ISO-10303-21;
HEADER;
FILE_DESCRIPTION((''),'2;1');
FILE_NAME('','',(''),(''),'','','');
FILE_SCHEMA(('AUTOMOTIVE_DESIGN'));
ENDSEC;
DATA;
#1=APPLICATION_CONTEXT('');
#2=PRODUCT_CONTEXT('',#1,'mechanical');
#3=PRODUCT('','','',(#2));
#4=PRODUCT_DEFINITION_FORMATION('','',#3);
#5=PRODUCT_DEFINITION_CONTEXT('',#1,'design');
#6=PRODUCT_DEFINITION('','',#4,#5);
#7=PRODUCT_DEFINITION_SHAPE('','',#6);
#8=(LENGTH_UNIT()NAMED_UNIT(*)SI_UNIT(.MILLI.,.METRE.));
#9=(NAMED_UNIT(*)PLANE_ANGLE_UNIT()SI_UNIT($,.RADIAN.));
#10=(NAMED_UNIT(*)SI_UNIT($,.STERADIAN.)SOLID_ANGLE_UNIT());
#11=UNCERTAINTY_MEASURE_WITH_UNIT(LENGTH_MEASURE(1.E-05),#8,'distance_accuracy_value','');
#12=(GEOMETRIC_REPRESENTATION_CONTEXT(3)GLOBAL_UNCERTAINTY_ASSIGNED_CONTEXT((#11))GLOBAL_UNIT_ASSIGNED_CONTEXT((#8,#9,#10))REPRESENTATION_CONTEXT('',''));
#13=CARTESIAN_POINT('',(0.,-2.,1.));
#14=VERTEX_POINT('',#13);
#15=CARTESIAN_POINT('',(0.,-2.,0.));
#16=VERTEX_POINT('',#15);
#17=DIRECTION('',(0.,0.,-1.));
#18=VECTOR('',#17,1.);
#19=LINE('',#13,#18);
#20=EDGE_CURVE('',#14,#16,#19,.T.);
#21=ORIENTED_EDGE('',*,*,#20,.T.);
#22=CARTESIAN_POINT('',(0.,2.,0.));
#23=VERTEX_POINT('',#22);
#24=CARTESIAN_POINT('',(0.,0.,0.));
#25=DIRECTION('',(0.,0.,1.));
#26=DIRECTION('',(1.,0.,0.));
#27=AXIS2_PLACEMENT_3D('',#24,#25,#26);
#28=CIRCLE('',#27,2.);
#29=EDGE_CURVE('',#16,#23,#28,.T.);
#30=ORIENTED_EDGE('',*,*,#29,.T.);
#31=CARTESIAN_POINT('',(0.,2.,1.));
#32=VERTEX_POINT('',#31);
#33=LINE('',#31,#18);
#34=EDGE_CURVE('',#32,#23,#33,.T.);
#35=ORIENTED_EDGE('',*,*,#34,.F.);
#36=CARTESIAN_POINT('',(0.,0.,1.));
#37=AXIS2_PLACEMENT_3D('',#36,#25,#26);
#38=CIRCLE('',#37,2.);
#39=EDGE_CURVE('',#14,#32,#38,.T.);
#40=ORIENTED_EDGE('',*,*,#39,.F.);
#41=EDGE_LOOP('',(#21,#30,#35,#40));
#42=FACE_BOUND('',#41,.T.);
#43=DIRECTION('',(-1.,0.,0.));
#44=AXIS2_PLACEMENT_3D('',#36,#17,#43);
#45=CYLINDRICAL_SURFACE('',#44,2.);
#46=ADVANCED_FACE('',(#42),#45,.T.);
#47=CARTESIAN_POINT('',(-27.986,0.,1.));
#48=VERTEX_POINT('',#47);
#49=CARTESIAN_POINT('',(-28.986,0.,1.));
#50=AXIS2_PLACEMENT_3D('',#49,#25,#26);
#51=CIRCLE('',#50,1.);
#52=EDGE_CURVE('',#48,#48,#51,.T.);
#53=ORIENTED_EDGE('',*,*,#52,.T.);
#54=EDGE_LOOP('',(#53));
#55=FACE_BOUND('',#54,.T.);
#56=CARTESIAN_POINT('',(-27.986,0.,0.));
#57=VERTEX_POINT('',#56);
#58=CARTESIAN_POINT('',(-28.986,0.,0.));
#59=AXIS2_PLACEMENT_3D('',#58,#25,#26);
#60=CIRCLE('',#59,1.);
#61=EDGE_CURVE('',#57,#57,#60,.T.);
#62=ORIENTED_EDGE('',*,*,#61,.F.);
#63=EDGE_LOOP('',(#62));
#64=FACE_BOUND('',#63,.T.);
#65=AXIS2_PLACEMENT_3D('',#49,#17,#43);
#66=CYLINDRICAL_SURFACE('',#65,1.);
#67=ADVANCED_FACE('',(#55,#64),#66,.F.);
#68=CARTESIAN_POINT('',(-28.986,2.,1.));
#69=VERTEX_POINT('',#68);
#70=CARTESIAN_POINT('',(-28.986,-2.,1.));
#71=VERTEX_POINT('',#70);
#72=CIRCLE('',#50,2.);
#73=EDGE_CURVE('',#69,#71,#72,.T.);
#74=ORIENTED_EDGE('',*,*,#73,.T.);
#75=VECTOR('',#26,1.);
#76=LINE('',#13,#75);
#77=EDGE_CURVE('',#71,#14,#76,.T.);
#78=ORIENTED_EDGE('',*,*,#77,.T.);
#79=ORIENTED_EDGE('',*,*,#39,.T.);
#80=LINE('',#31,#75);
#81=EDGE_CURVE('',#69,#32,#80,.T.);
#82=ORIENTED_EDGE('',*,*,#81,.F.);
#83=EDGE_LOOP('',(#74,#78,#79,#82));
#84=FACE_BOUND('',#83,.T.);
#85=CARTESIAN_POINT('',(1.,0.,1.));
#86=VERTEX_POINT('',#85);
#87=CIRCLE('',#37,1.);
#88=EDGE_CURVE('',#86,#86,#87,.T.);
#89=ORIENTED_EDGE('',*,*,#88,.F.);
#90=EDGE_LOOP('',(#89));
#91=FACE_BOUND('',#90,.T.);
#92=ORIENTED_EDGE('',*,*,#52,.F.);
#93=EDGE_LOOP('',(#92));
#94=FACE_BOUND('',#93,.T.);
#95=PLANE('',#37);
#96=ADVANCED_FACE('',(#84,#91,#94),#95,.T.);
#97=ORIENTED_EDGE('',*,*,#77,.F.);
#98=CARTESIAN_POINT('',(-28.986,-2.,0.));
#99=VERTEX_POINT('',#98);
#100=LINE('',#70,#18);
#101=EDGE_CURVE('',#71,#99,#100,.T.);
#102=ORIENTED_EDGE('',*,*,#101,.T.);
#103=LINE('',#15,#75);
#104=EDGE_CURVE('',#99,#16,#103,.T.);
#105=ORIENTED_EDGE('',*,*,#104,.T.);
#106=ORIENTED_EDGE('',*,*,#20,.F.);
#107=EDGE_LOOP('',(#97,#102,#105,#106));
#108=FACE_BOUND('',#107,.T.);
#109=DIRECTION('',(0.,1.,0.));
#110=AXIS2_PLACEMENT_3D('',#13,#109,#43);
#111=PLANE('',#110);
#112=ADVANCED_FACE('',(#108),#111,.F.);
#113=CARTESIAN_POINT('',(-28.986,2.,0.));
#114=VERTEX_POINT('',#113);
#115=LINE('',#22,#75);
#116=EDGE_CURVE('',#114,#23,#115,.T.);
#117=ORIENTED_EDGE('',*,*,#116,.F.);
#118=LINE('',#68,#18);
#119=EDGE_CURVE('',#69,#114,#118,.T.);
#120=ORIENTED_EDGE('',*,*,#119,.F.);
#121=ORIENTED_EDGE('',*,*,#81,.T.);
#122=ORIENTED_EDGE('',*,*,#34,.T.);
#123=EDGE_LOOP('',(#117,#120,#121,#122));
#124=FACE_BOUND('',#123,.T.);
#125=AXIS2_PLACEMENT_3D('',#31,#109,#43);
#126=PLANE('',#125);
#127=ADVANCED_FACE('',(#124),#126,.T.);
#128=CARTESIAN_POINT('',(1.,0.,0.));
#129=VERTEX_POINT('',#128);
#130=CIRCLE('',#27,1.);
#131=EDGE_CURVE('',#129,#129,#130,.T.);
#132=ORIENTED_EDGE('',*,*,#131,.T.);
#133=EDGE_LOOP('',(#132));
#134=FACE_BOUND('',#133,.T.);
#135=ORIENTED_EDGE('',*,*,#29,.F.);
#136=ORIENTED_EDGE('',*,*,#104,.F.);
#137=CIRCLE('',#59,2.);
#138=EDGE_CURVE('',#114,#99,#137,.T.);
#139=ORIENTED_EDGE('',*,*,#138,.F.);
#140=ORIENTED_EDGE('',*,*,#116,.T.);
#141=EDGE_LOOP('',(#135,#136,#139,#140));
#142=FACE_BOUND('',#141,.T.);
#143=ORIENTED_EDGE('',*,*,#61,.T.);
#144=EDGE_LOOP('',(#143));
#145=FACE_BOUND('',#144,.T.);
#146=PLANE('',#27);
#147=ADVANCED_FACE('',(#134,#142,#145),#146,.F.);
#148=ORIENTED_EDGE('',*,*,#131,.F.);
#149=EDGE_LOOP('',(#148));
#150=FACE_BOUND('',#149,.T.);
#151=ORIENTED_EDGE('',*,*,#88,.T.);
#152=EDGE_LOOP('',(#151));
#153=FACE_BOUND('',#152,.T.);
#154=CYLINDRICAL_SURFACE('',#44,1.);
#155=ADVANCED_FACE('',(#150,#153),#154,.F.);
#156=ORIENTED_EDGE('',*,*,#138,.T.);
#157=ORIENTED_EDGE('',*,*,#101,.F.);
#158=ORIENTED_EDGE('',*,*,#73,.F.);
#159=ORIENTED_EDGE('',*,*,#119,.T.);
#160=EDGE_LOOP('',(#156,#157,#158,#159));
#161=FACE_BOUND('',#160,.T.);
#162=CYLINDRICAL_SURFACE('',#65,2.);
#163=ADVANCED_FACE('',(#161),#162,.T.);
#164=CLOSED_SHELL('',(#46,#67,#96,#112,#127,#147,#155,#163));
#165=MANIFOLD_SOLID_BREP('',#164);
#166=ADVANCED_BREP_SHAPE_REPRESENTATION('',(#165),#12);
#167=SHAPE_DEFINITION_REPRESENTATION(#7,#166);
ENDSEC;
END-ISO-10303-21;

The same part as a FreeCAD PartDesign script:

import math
import FreeCAD as App
import Part
import Sketcher
Q = App.Units.Quantity

doc = App.newDocument("Part")
params = doc.addObject("Spreadsheet::Sheet", "Params")
for row, (alias, value) in enumerate([
    ("sketch1_diameter", "2 mm"),
    ("sketch1_radius", "2 mm"),
    ("pad1_length", "1 mm"),
], start=1):
    params.set(f"A{row}", alias)
    params.set(f"B{row}", "=" + value)
    params.setAlias(f"B{row}", alias)

body = doc.addObject("PartDesign::Body", "Body")

# Sketch on XY plane
sketch1 = doc.addObject("Sketcher::SketchObject", "Sketch")
body.addObject(sketch1)
sketch1.AttachmentSupport = (doc.XY_Plane, [""])
sketch1.MapMode = "FlatFace"
sketch1.addGeometry([
    Part.LineSegment(App.Vector(0, 2, 0), App.Vector(-29, 2, 0)),  # 0
    Part.ArcOfCircle(Part.Circle(App.Vector(-29, 0, 0), App.Vector(0, 0, 1), 2), math.radians(90), math.radians(270)),  # 1
    Part.LineSegment(App.Vector(-29, -2, 0), App.Vector(0, -2, 0)),  # 2
    Part.ArcOfCircle(Part.Circle(App.Vector(0, 0, 0), App.Vector(0, 0, 1), 2), math.radians(-90), math.radians(90)),  # 3
    Part.Circle(App.Vector(-29, 0, 0), App.Vector(0, 0, 1), 1),  # 4
    Part.Circle(App.Vector(0, 0, 0), App.Vector(0, 0, 1), 1),  # 5
], False)
sketch1.addConstraint([
    Sketcher.Constraint("Tangent", 0, 2, 1, 1),
    Sketcher.Constraint("Tangent", 1, 2, 2, 1),
    Sketcher.Constraint("Tangent", 2, 2, 3, 1),
    Sketcher.Constraint("Tangent", 3, 2, 0, 1),
    Sketcher.Constraint("Horizontal", 0),
    Sketcher.Constraint("Horizontal", 2),
    Sketcher.Constraint("Coincident", 3, 3, -1, 1),
    Sketcher.Constraint("Coincident", 5, 3, -1, 1),
    Sketcher.Constraint("Coincident", 4, 3, 1, 3),
    Sketcher.Constraint("Equal", 4, 5),
    Sketcher.Constraint("Diameter", 4, Q("2 mm")),
    Sketcher.Constraint("Radius", 1, Q("2 mm")),
    Sketcher.Constraint("DistanceX", 0, 2, 0, 1, Q("28.986 mm")),
])
sketch1.setExpression("Constraints[10]", "Params.sketch1_diameter")
sketch1.setExpression("Constraints[11]", "Params.sketch1_radius")
pad1 = doc.addObject("PartDesign::Pad", "Pad")
body.addObject(pad1)
pad1.Profile = sketch1
pad1.setExpression("Length", "Params.pad1_length")

doc.recompute()
